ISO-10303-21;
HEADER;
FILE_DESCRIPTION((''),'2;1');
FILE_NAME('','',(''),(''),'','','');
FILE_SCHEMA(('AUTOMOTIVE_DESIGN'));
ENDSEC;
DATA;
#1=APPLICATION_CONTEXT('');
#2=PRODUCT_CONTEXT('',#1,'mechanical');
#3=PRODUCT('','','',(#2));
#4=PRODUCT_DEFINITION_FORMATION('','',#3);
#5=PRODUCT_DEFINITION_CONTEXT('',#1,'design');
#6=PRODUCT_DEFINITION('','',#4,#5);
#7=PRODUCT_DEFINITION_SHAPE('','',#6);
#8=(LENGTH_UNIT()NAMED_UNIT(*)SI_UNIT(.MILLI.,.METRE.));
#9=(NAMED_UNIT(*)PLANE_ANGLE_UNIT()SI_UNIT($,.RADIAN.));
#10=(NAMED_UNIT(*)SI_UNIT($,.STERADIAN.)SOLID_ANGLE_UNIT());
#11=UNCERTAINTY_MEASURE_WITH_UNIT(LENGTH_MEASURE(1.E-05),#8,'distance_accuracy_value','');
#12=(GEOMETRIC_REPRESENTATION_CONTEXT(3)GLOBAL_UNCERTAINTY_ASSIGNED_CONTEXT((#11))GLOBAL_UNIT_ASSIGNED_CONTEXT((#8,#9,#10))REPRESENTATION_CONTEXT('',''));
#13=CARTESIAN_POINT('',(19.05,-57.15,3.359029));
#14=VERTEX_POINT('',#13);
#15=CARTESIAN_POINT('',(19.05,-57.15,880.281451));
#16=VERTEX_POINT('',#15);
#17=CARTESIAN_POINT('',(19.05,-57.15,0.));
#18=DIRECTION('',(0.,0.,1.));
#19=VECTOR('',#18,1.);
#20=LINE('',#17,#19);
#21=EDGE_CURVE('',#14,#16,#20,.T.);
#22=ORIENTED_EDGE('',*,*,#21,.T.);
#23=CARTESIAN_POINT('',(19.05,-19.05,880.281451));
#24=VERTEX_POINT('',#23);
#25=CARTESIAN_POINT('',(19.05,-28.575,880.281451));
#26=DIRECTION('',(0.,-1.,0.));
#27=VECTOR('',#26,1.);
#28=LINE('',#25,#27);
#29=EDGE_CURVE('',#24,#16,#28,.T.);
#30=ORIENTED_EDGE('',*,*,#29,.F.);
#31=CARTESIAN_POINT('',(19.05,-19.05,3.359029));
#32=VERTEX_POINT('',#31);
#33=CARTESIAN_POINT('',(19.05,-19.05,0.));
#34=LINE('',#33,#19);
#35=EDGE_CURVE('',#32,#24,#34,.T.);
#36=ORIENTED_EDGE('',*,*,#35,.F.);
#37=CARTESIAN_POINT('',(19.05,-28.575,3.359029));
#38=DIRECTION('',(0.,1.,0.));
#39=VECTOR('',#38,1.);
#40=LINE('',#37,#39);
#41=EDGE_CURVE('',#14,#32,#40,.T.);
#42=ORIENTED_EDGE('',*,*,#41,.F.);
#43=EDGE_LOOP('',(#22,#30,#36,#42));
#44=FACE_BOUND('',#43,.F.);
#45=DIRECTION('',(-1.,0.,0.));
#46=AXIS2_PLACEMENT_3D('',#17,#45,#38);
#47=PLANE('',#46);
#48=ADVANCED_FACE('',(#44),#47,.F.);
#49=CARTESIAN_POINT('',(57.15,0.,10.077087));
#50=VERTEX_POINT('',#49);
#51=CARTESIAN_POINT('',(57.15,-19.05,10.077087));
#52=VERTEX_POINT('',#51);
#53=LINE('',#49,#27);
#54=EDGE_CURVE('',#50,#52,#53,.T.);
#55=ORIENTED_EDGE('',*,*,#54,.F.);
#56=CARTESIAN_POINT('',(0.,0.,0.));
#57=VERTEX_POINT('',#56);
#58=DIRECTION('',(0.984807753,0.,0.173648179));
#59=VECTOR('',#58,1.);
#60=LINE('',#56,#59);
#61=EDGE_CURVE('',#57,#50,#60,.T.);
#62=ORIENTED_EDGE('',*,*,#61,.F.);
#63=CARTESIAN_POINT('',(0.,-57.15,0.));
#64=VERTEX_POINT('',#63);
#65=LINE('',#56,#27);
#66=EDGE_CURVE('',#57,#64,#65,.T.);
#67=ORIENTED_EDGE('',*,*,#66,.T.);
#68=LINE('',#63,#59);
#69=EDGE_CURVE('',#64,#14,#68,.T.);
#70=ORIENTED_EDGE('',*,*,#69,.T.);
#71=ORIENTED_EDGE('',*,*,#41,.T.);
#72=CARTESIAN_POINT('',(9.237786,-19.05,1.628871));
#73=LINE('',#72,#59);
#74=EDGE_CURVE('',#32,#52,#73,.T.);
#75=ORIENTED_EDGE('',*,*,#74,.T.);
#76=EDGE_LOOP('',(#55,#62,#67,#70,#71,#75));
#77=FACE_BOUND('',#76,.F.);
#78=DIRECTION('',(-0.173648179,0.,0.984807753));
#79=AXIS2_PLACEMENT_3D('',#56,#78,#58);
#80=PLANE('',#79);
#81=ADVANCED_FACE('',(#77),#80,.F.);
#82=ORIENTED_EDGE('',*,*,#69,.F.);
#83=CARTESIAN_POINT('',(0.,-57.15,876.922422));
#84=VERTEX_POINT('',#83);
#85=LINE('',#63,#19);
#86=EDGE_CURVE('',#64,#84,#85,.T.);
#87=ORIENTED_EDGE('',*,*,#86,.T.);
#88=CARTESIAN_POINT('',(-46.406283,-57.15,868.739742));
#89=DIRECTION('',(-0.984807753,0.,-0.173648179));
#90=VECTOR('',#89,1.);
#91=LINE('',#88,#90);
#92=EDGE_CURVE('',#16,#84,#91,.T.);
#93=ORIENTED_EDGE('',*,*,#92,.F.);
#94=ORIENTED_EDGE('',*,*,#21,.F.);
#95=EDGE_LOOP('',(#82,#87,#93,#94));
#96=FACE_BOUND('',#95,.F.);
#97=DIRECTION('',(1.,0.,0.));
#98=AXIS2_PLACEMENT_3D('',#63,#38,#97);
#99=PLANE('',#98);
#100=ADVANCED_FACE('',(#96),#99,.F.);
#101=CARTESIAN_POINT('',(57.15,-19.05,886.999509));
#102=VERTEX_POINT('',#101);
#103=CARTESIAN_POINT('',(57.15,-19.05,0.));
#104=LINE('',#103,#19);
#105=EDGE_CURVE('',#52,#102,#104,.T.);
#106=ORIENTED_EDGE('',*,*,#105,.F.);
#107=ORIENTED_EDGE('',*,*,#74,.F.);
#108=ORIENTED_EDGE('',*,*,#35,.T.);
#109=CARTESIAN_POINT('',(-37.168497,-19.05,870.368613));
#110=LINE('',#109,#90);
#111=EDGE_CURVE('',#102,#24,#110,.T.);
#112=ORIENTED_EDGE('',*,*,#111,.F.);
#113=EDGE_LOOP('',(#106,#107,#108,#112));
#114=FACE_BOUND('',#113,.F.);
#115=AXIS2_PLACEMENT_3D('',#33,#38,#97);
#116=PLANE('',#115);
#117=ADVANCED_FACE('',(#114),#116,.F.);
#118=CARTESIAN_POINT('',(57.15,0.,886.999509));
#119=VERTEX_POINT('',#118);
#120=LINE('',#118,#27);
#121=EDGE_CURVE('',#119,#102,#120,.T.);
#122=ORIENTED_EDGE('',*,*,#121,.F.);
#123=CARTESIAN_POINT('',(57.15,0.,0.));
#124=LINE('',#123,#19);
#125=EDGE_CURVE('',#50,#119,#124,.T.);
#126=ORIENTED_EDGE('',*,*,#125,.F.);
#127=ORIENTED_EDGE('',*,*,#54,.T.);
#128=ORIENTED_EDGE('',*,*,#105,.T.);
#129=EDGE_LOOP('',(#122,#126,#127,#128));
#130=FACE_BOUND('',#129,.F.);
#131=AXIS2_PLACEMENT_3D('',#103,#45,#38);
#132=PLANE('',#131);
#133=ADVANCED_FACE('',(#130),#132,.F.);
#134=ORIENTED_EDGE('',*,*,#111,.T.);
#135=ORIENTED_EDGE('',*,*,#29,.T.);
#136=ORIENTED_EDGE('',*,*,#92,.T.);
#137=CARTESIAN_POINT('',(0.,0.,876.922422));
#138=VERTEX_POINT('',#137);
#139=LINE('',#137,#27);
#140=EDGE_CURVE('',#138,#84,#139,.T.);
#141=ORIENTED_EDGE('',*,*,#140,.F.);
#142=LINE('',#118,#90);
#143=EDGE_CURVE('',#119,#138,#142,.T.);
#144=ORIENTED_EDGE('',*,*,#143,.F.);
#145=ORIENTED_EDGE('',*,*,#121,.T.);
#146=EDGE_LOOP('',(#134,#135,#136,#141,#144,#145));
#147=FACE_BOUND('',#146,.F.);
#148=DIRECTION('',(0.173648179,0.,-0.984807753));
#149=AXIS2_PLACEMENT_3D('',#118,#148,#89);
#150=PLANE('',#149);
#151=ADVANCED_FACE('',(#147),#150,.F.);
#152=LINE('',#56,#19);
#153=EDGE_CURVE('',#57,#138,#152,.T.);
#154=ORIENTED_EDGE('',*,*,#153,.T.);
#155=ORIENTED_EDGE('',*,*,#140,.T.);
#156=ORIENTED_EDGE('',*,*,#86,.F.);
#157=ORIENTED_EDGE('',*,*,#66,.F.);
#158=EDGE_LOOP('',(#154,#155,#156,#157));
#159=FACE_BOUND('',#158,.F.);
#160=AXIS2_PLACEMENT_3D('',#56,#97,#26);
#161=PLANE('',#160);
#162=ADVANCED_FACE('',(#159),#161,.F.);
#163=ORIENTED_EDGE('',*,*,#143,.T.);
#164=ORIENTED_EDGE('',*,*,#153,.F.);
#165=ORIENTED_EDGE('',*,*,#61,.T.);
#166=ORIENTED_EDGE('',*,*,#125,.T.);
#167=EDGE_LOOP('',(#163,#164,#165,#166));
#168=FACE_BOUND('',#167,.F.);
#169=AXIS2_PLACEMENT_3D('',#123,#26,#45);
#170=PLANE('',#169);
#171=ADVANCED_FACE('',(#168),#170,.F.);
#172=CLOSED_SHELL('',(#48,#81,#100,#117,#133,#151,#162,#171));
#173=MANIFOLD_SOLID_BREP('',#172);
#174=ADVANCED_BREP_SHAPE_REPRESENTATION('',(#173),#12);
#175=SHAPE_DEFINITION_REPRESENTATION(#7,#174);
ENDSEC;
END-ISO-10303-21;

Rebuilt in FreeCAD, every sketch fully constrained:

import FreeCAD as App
import Part
import Sketcher

V = App.Vector
Q = App.Units.Quantity

doc = App.newDocument("Part")
body = doc.addObject("PartDesign::Body", "Body")

# Sketch on XY plane
sketch1 = body.newObject("Sketcher::SketchObject", "Sketch")
sketch1.AttachmentSupport = (doc.getObject("XY_Plane"), [""])
sketch1.MapMode = "FlatFace"
sketch1.addGeometry([
    Part.LineSegment(V(57.15, 0, 0), V(0, 0, 0)),  # 0
    Part.LineSegment(V(0, 0, 0), V(0, -57.15, 0)),  # 1
    Part.LineSegment(V(0, -57.15, 0), V(19.05, -57.15, 0)),  # 2
    Part.LineSegment(V(19.05, -57.15, 0), V(19.05, -19.05, 0)),  # 3
    Part.LineSegment(V(19.05, -19.05, 0), V(57.15, -19.05, 0)),  # 4
    Part.LineSegment(V(57.15, -19.05, 0), V(57.15, 0, 0)),  # 5
], False)
sketch1.addConstraint([
    Sketcher.Constraint("Coincident", 0, 2, 1, 1),
    Sketcher.Constraint("Coincident", 1, 2, 2, 1),
    Sketcher.Constraint("Coincident", 2, 2, 3, 1),
    Sketcher.Constraint("Coincident", 3, 2, 4, 1),
    Sketcher.Constraint("Coincident", 4, 2, 5, 1),
    Sketcher.Constraint("Coincident", 5, 2, 0, 1),
    Sketcher.Constraint("Horizontal", 0),
    Sketcher.Constraint("Vertical", 1),
    Sketcher.Constraint("Horizontal", 2),
    Sketcher.Constraint("Vertical", 3),
    Sketcher.Constraint("Horizontal", 4),
    Sketcher.Constraint("Vertical", 5),
    Sketcher.Constraint("Coincident", 0, 2, -1, 1),
    Sketcher.Constraint("Equal", 0, 1),
    Sketcher.Constraint("Equal", 4, 3),
    Sketcher.Constraint("DistanceX", 4, 1, 4, 2, Q("1.5 in")),
    Sketcher.Constraint("DistanceX", 0, 2, 0, 1, Q("2.25 in")),
])
pad1 = body.newObject("PartDesign::Pad", "Pad")
pad1.Profile = sketch1
pad1.Length = Q("40 in")

# Sketch on XZ plane
sketch2 = body.newObject("Sketcher::SketchObject", "Sketch001")
sketch2.AttachmentSupport = (doc.getObject("XZ_Plane"), [""])
sketch2.MapMode = "FlatFace"
sketch2.addGeometry([
    Part.LineSegment(V(57.15, 0, 0), V(0, 0, 0)),  # 0
    Part.LineSegment(V(0, 0, 0), V(57.15, 10.077087, 0)),  # 1
    Part.LineSegment(V(57.15, 10.077087, 0), V(57.15, 0, 0)),  # 2
    Part.LineSegment(V(0, 876.922422, 0), V(0, 1016, 0)),  # 3
    Part.LineSegment(V(0, 1016, 0), V(57.15, 1016, 0)),  # 4
    Part.LineSegment(V(57.15, 1016, 0), V(57.15, 886.999509, 0)),  # 5
    Part.LineSegment(V(57.15, 886.999509, 0), V(0, 876.922422, 0)),  # 6
], False)
sketch2.addConstraint([
    Sketcher.Constraint("Coincident", 0, 2, 1, 1),
    Sketcher.Constraint("Coincident", 1, 2, 2, 1),
    Sketcher.Constraint("Coincident", 2, 2, 0, 1),
    Sketcher.Constraint("Coincident", 3, 2, 4, 1),
    Sketcher.Constraint("Coincident", 4, 2, 5, 1),
    Sketcher.Constraint("Coincident", 5, 2, 6, 1),
    Sketcher.Constraint("Coincident", 6, 2, 3, 1),
    Sketcher.Constraint("Horizontal", 0),
    Sketcher.Constraint("Vertical", 2),
    Sketcher.Constraint("Vertical", 3),
    Sketcher.Constraint("Horizontal", 4),
    Sketcher.Constraint("Vertical", 5),
    Sketcher.Constraint("Coincident", 0, 2, -1, 1),
    Sketcher.Constraint("PointOnObject", 3, 2, -2),
    Sketcher.Constraint("Parallel", 1, 6),
    Sketcher.Constraint("Vertical", 2, 2, 4, 2),
    Sketcher.Constraint("DistanceY", -1, 1, 3, 2, Q("40 in")),
    Sketcher.Constraint("Angle", 1, Q("10 deg")),
    Sketcher.Constraint("DistanceX", 0, 2, 0, 1, Q("2.25 in")),
    Sketcher.Constraint("DistanceY", 3, 1, 3, 2, 139.077578),
])
pocket1 = body.newObject("PartDesign::Pocket", "Pocket")
pocket1.Profile = sketch2
pocket1.Type = "ThroughAll"
pocket1.Reversed = True

doc.recompute()
